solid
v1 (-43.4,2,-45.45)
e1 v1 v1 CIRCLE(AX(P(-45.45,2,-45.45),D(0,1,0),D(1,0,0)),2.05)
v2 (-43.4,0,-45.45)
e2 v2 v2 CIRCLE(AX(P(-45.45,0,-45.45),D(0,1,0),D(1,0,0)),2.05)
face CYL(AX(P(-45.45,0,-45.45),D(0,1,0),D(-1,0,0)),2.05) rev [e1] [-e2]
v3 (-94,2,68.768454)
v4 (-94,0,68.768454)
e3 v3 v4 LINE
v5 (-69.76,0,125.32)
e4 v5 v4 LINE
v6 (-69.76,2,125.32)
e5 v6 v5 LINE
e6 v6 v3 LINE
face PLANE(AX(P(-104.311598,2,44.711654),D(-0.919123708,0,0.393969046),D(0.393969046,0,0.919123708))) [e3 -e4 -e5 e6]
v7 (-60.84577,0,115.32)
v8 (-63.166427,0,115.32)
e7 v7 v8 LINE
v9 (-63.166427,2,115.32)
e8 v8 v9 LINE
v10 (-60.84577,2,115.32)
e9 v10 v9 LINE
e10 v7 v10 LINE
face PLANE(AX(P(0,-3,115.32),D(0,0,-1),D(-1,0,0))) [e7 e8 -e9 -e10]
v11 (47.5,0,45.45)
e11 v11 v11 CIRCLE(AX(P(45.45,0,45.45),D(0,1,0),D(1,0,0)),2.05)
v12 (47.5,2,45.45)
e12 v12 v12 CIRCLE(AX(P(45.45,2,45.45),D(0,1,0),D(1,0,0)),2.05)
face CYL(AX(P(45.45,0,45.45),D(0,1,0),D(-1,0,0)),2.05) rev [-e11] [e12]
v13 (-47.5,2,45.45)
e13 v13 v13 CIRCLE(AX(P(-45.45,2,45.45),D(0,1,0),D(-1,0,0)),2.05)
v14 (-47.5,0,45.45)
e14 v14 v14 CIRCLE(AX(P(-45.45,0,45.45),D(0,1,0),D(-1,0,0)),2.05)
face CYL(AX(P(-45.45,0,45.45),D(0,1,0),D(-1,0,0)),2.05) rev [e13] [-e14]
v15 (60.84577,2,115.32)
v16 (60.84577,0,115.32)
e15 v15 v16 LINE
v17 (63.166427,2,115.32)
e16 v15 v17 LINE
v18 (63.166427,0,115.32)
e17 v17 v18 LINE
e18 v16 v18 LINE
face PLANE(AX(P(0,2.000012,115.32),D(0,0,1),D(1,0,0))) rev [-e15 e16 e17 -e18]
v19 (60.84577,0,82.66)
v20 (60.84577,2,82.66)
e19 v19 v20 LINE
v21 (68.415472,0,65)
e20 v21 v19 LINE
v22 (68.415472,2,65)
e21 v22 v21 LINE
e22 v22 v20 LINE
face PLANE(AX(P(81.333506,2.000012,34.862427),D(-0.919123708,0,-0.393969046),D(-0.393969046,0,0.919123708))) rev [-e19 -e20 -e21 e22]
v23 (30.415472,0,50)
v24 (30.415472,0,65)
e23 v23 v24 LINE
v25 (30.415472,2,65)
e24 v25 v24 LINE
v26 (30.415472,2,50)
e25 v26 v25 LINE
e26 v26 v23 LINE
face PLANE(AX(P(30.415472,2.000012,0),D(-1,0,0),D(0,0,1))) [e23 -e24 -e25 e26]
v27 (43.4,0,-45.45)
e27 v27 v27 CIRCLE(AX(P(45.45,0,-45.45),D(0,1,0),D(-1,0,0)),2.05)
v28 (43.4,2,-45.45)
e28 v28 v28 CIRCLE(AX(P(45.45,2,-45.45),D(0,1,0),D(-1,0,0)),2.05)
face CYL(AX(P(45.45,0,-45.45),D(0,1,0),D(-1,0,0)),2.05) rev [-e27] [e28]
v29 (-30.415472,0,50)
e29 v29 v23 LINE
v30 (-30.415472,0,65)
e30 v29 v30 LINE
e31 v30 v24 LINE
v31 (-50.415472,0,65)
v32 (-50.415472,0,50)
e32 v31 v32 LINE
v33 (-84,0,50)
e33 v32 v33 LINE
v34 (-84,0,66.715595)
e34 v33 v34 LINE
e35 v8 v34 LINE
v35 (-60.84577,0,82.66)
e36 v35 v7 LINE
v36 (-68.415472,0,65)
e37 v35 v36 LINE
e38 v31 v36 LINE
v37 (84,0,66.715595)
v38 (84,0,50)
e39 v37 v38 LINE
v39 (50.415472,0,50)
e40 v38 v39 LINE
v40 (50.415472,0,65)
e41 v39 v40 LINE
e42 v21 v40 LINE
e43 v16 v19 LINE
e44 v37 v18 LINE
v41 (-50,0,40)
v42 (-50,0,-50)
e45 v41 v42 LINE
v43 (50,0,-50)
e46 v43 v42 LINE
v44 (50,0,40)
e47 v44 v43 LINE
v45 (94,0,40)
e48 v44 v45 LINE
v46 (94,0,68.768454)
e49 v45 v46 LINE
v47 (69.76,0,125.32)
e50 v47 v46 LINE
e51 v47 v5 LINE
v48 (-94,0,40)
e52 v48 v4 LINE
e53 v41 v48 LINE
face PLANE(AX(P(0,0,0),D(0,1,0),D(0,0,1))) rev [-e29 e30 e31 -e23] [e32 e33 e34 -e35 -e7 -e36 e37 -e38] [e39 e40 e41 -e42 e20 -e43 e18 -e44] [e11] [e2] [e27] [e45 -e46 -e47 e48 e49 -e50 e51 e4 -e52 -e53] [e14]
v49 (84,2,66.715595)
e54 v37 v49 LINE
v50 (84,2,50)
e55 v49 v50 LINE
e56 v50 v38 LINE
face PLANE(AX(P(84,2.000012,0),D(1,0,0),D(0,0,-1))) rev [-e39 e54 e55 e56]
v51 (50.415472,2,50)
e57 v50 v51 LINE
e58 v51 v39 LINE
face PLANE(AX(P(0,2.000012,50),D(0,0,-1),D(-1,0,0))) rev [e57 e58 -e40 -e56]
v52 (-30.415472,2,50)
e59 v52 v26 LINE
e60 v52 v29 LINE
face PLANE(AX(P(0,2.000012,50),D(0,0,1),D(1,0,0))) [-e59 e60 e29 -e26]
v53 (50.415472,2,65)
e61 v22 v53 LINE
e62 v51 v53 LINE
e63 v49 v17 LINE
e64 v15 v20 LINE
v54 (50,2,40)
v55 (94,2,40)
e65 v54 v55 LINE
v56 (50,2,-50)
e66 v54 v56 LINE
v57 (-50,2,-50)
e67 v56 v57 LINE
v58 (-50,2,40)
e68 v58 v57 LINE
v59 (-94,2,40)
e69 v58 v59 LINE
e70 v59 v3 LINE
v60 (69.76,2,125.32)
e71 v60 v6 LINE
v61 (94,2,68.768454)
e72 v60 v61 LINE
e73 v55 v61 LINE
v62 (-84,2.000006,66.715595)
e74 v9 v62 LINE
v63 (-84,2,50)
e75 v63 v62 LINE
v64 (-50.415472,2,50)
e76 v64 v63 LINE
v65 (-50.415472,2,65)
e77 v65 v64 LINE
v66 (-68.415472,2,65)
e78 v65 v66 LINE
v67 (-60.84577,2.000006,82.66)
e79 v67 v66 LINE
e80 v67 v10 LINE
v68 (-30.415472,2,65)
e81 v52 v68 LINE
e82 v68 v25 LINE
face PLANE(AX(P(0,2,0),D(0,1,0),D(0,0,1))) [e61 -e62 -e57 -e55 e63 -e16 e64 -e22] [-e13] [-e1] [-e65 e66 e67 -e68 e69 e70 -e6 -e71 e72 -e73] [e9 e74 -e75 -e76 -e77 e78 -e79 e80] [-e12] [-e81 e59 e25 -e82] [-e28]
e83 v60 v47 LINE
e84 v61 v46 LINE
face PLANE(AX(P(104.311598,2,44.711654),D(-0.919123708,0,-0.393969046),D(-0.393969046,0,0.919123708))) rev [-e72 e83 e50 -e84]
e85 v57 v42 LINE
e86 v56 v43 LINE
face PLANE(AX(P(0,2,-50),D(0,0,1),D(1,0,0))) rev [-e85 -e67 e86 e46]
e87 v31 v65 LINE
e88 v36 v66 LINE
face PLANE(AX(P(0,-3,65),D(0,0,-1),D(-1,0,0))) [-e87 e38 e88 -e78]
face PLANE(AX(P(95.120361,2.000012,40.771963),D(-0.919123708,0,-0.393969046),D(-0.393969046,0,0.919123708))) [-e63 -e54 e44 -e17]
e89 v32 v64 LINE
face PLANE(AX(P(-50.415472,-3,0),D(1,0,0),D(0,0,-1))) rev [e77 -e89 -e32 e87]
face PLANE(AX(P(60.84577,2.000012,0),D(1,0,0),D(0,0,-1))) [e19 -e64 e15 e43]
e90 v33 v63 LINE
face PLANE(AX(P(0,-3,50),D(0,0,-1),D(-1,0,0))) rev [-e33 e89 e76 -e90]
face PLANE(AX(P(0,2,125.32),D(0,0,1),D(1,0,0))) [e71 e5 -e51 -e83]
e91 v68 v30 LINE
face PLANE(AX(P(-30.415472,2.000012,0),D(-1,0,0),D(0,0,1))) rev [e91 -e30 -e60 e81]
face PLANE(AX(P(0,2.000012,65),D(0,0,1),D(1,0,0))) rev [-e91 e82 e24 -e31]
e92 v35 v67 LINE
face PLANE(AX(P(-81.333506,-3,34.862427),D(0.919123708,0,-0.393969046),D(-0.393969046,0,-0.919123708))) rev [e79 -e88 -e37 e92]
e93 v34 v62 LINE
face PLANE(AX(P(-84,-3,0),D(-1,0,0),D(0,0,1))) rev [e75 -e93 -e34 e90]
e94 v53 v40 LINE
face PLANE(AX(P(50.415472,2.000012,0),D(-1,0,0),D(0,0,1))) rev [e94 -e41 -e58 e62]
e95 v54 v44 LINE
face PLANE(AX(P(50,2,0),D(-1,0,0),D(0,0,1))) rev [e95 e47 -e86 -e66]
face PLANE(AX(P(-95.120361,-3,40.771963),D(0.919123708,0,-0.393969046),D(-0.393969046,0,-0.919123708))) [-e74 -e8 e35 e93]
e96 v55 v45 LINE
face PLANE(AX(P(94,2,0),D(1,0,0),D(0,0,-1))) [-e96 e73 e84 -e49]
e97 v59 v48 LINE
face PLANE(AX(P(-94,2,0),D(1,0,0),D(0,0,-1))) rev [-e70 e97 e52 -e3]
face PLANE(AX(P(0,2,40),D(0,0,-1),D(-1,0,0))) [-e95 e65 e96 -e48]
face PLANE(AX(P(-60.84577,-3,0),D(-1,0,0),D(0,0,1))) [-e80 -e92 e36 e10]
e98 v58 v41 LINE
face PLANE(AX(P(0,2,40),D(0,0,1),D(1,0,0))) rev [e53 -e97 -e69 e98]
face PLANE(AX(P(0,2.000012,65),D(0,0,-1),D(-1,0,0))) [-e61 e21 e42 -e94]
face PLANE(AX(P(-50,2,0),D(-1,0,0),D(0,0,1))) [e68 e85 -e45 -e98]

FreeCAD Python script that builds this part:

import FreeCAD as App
import Part
import Sketcher


def add_polygon(sketch, points):
    """Adds a closed chain of lines whose ends are joined by coincident constraints."""
    first, n = sketch.GeometryCount, len(points)
    for a, b in zip(points, points[1:] + points[:1]):
        sketch.addGeometry(Part.LineSegment(App.Vector(*a, 0), App.Vector(*b, 0)), False)
    for i in range(n):
        sketch.addConstraint(Sketcher.Constraint("Coincident", first + i, 2, first + (i + 1) % n, 1))

doc = App.newDocument("Part")
body = doc.addObject("PartDesign::Body", "Body")

# Sketch on XZ plane
sketch1 = body.newObject("Sketcher::SketchObject", "Sketch")
sketch1.AttachmentSupport = (doc.getObject("XZ_Plane"), [""])
sketch1.MapMode = "FlatFace"
add_polygon(sketch1, [(94, 40), (50, 40), (50, -50), (-50, -50), (-50, 40), (-94, 40), (-94, 69), (-70, 125), (70, 125), (94, 69)])  # lines 0-9
sketch1.addConstraint(Sketcher.Constraint("Horizontal", 0))
sketch1.addConstraint(Sketcher.Constraint("Vertical", 1))
sketch1.addConstraint(Sketcher.Constraint("Horizontal", 2))
sketch1.addConstraint(Sketcher.Constraint("Vertical", 3))
sketch1.addConstraint(Sketcher.Constraint("Horizontal", 4))
sketch1.addConstraint(Sketcher.Constraint("Vertical", 5))
sketch1.addConstraint(Sketcher.Constraint("Horizontal", 7))
sketch1.addConstraint(Sketcher.Constraint("Vertical", 9))
sketch1.addConstraint(Sketcher.Constraint("Symmetric", 0, 2, 3, 2, -2))
sketch1.addConstraint(Sketcher.Constraint("Symmetric", 5, 2, 8, 2, -2))
sketch1.addConstraint(Sketcher.Constraint("Equal", 6, 8))
sketch1.addConstraint(Sketcher.Constraint("DistanceX", 0, 2, 0, 1, 44.0))
sketch1.addConstraint(Sketcher.Constraint("DistanceX", 2, 2, 2, 1, 100.0))
sketch1.addConstraint(Sketcher.Constraint("DistanceY", 1, 2, 1, 1, 90.0))
sketch1.addConstraint(Sketcher.Constraint("DistanceY", -1, 1, 0, 2, 40.0))
sketch1.addConstraint(Sketcher.Constraint("DistanceX", 7, 1, 7, 2, 139.52))
sketch1.addConstraint(Sketcher.Constraint("DistanceY", -1, 1, 6, 2, 125.32))
sketch1.addConstraint(Sketcher.Constraint("DistanceY", 5, 1, 5, 2, 28.768454))
pad1 = body.newObject("PartDesign::Pad", "Pad")
pad1.Profile = sketch1
pad1.Length = 2
pad1.Reversed = True

# Sketch on XZ plane
sketch2 = body.newObject("Sketcher::SketchObject", "Sketch001")
sketch2.AttachmentSupport = (doc.getObject("XZ_Plane"), [""])
sketch2.MapMode = "FlatFace"
sketch2.AttachmentOffset = App.Placement(App.Vector(0, 0, -2), App.Rotation())
sketch2.addGeometry(Part.Circle(App.Vector(-45.5, 45.5, 0), App.Vector(0, 0, 1), 2), False)
sketch2.addGeometry(Part.Circle(App.Vector(45.5, 45.5, 0), App.Vector(0, 0, 1), 2), False)
sketch2.addGeometry(Part.Circle(App.Vector(-45.5, -45.5, 0), App.Vector(0, 0, 1), 2), False)
sketch2.addGeometry(Part.Circle(App.Vector(45.5, -45.5, 0), App.Vector(0, 0, 1), 2), False)
sketch2.addConstraint(Sketcher.Constraint("Equal", 0, 1))
sketch2.addConstraint(Sketcher.Constraint("Equal", 1, 2))
sketch2.addConstraint(Sketcher.Constraint("Equal", 2, 3))
sketch2.addConstraint(Sketcher.Constraint("Symmetric", 1, 3, 2, 3, -1, 1))
sketch2.addConstraint(Sketcher.Constraint("Symmetric", 0, 3, 3, 3, -1, 1))
sketch2.addConstraint(Sketcher.Constraint("Symmetric", 0, 3, 1, 3, -2))
sketch2.addConstraint(Sketcher.Constraint("Diameter", 0, 4.1))
sketch2.addConstraint(Sketcher.Constraint("DistanceX", 0, 3, 1, 3, 90.9))
sketch2.addConstraint(Sketcher.Constraint("DistanceY", 2, 3, 0, 3, 90.9))
pocket1 = body.newObject("PartDesign::Pocket", "Pocket")
pocket1.Profile = sketch2
pocket1.Type = "ThroughAll"
pocket1.Reversed = True

# Sketch on XZ plane
sketch3 = body.newObject("Sketcher::SketchObject", "Sketch002")
sketch3.AttachmentSupport = (doc.getObject("XZ_Plane"), [""])
sketch3.MapMode = "FlatFace"
sketch3.AttachmentOffset = App.Placement(App.Vector(0, 0, -2), App.Rotation())
add_polygon(sketch3, [(-60.8, 115.3), (-60.8, 82.7), (-68.4, 65), (-50.4, 65), (-50.4, 50), (-84, 50), (-84, 66.7), (-63.2, 115.3)])  # lines 0-7
add_polygon(sketch3, [(-30.4, 50), (-30.4, 65), (30.4, 65), (30.4, 50)])  # lines 8-11
add_polygon(sketch3, [(84, 50), (50.4, 50), (50.4, 65), (68.4, 65), (60.8, 82.7), (60.8, 115.3), (63.2, 115.3), (84, 66.7)])  # lines 12-19
sketch3.addConstraint(Sketcher.Constraint("Vertical", 0))
sketch3.addConstraint(Sketcher.Constraint("Horizontal", 2))
sketch3.addConstraint(Sketcher.Constraint("Vertical", 3))
sketch3.addConstraint(Sketcher.Constraint("Horizontal", 4))
sketch3.addConstraint(Sketcher.Constraint("Vertical", 5))
sketch3.addConstraint(Sketcher.Constraint("Horizontal", 7))
sketch3.addConstraint(Sketcher.Constraint("Vertical", 8))
sketch3.addConstraint(Sketcher.Constraint("Horizontal", 9))
sketch3.addConstraint(Sketcher.Constraint("Vertical", 10))
sketch3.addConstraint(Sketcher.Constraint("Horizontal", 11))
sketch3.addConstraint(Sketcher.Constraint("Horizontal", 12))
sketch3.addConstraint(Sketcher.Constraint("Vertical", 13))
sketch3.addConstraint(Sketcher.Constraint("Horizontal", 14))
sketch3.addConstraint(Sketcher.Constraint("Vertical", 16))
sketch3.addConstraint(Sketcher.Constraint("Horizontal", 17))
sketch3.addConstraint(Sketcher.Constraint("Vertical", 19))
sketch3.addConstraint(Sketcher.Constraint("Symmetric", 3, 2, 12, 2, -2))
sketch3.addConstraint(Sketcher.Constraint("Symmetric", 1, 2, 14, 2, -2))
sketch3.addConstraint(Sketcher.Constraint("Symmetric", 0, 2, 15, 2, -2))
sketch3.addConstraint(Sketcher.Constraint("Symmetric", 6, 2, 17, 2, -2))
sketch3.addConstraint(Sketcher.Constraint("Symmetric", 5, 2, 18, 2, -2))
sketch3.addConstraint(Sketcher.Constraint("Parallel", 1, 6))
sketch3.addConstraint(Sketcher.Constraint("Horizontal", 2, 2, 8, 2))
sketch3.addConstraint(Sketcher.Constraint("Horizontal", 4, 2, 10, 2))
sketch3.addConstraint(Sketcher.Constraint("DistanceX", 2, 1, 2, 2, 18.0))
sketch3.addConstraint(Sketcher.Constraint("DistanceY", 3, 2, 3, 1, 15.0))
sketch3.addConstraint(Sketcher.Constraint("DistanceY", -1, 1, 1, 2, 65.0))
sketch3.addConstraint(Sketcher.Constraint("DistanceX", 4, 2, -1, 1, 84.0))
sketch3.addConstraint(Sketcher.Constraint("DistanceX", 2, 2, 8, 2, 20.0))
sketch3.addConstraint(Sketcher.Constraint("DistanceX", 10, 2, 12, 2, 20.0))
sketch3.addConstraint(Sketcher.Constraint("DistanceY", 0, 2, 0, 1, 32.66))
sketch3.addConstraint(Sketcher.Constraint("DistanceY", -1, 1, 0, 2, 82.66))
sketch3.addConstraint(Sketcher.Constraint("DistanceX", 4, 2, 4, 1, 33.584528))
sketch3.addConstraint(Sketcher.Constraint("DistanceX", 7, 1, 7, 2, 2.320657))
sketch3.addConstraint(Sketcher.Constraint("DistanceY", 5, 1, 5, 2, 16.715595))
pocket2 = body.newObject("PartDesign::Pocket", "Pocket001")
pocket2.Profile = sketch3
pocket2.Type = "ThroughAll"
pocket2.Midplane = True

doc.recompute()
